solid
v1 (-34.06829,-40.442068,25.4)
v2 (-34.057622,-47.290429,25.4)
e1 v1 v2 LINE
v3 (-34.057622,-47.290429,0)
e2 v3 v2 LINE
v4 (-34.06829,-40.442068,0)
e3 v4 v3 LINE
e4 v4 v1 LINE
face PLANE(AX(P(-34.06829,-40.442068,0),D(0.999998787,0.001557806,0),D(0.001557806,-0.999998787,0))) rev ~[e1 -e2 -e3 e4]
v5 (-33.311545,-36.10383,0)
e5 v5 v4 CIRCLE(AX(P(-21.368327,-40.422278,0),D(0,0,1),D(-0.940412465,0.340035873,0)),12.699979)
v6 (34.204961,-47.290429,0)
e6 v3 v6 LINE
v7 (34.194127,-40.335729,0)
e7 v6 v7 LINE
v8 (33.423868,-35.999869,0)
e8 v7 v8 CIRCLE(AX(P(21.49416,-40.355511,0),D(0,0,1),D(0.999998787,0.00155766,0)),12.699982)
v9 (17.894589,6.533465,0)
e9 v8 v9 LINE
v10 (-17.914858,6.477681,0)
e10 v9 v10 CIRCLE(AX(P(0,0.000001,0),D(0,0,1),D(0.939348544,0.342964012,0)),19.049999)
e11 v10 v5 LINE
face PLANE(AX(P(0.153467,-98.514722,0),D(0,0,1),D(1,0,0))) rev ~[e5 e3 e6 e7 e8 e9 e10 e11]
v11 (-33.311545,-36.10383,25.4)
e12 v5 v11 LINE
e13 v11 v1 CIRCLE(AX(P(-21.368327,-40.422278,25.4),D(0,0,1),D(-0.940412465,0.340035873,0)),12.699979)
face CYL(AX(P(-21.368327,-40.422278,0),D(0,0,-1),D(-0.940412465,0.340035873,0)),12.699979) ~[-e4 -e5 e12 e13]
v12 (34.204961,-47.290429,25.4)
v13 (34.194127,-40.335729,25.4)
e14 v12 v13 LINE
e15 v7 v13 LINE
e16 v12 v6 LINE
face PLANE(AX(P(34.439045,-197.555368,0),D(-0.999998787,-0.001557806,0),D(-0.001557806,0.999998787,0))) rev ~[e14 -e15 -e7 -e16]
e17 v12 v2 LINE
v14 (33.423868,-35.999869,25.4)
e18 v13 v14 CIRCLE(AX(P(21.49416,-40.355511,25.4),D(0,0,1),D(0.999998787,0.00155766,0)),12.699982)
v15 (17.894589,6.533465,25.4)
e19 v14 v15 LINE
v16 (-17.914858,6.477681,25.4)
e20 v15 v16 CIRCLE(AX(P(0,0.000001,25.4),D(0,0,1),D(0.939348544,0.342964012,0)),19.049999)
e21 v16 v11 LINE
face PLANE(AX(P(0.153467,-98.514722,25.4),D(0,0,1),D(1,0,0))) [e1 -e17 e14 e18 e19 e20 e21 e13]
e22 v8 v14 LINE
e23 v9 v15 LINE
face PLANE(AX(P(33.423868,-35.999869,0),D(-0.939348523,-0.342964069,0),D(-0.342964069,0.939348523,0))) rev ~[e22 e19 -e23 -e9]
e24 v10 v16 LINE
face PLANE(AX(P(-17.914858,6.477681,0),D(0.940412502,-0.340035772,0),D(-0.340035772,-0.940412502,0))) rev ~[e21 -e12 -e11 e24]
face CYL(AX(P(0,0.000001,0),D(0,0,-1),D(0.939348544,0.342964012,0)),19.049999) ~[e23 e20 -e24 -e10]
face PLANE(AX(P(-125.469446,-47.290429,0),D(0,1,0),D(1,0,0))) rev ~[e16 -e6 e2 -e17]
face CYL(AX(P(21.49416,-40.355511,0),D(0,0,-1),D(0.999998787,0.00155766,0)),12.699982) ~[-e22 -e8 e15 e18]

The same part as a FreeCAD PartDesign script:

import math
import FreeCAD as App
import Part
import Sketcher
from FreeCAD import Vector
Q = App.Units.Quantity

doc = App.newDocument("Part")
body = doc.addObject("PartDesign::Body", "Body")

sketch1 = body.newObject("Sketcher::SketchObject", "Sketch")
sketch1.AttachmentSupport = (doc.getObject("XY_Plane"), [""])
sketch1.MapMode = "FlatFace"
sketch1.addGeometry(Part.LineSegment(Vector(33.423868, -35.999869, 0), Vector(17.894589, 6.533465, 0)), False)
sketch1.addGeometry(Part.ArcOfCircle(Part.Circle(Vector(0, 0.000001, 0), Vector(0, 0, 1), 19.049999), math.radians(20.057561), math.radians(160.12095)), False)
sketch1.addGeometry(Part.LineSegment(Vector(-17.914858, 6.477681, 0), Vector(-33.311545, -36.10383, 0)), False)
sketch1.addGeometry(Part.ArcOfCircle(Part.Circle(Vector(-21.368327, -40.422278, 0), Vector(0, 0, 1), 12.699979), math.radians(160.12094), math.radians(180.089281)), False)
sketch1.addGeometry(Part.LineSegment(Vector(-34.06829, -40.442068, 0), Vector(-33.823372, -197.661708, 0)), False)
sketch1.addGeometry(Part.LineSegment(Vector(-33.823372, -197.661708, 0), Vector(34.439045, -197.555368, 0)), False)
sketch1.addGeometry(Part.LineSegment(Vector(34.439045, -197.555368, 0), Vector(34.194127, -40.335729, 0)), False)
sketch1.addGeometry(Part.ArcOfCircle(Part.Circle(Vector(21.49416, -40.355511, 0), Vector(0, 0, 1), 12.699982), math.radians(0.089247), math.radians(20.057587)), False)
sketch1.addConstraint(Sketcher.Constraint("Coincident", 0, 2, 1, 1))
sketch1.addConstraint(Sketcher.Constraint("Coincident", 1, 2, 2, 1))
sketch1.addConstraint(Sketcher.Constraint("Coincident", 2, 2, 3, 1))
sketch1.addConstraint(Sketcher.Constraint("Coincident", 3, 2, 4, 1))
sketch1.addConstraint(Sketcher.Constraint("Coincident", 4, 2, 5, 1))
sketch1.addConstraint(Sketcher.Constraint("Coincident", 5, 2, 6, 1))
sketch1.addConstraint(Sketcher.Constraint("Coincident", 6, 2, 7, 1))
sketch1.addConstraint(Sketcher.Constraint("Coincident", 7, 2, 0, 1))
sketch1.addConstraint(Sketcher.Constraint("Coincident", 1, 3, -1, 1))
sketch1.addConstraint(Sketcher.Constraint("Radius", 1, Q("0.75 in")))
sketch1.addConstraint(Sketcher.Constraint("Distance", 5, Q("2.6875 in")))
sketch1.addConstraint(Sketcher.Constraint("Radius", 3, 12.699979))
sketch1.addConstraint(Sketcher.Constraint("Radius", 7, 12.699982))
sketch1.addConstraint(Sketcher.Constraint("DistanceY", 5, 2, 3, 2, 157.1133))
sketch1.addConstraint(Sketcher.Constraint("DistanceY", 6, 2, 2, 2, 4.231899))
sketch1.addConstraint(Sketcher.Constraint("Distance", 0, 45.279609))
sketch1.addConstraint(Sketcher.Constraint("Distance", 2, 45.27961))
sketch1.addConstraint(Sketcher.Constraint("Distance", 4, 157.219831))
sketch1.addConstraint(Sketcher.Constraint("Distance", 6, 157.21983))
sketch1.addConstraint(Sketcher.Constraint("DistanceY", 3, 3, -1, 1, 40.422278))
sketch1.addConstraint(Sketcher.Constraint("DistanceX", -1, 1, 7, 3, 21.49416))
sketch1.addConstraint(Sketcher.Constraint("DistanceY", 7, 3, -1, 1, 40.355511))
sketch1.addConstraint(Sketcher.Constraint("DistanceX", -1, 1, 0, 2, 17.894589))
sketch1.addConstraint(Sketcher.Constraint("DistanceY", -1, 1, 1, 2, 6.477681))
sketch1.addConstraint(Sketcher.Constraint("DistanceY", 2, 2, -1, 1, 36.10383))
sketch1.addConstraint(Sketcher.Constraint("DistanceX", 3, 2, 4, 2, 0.244918))
pad1 = body.newObject("PartDesign::Pad", "Pad")
pad1.Profile = sketch1
pad1.Length = Q("1 in")

sketch2 = body.newObject("Sketcher::SketchObject", "Sketch001")
sketch2.AttachmentSupport = (doc.getObject("XY_Plane"), [""])
sketch2.MapMode = "FlatFace"
sketch2.addGeometry(Part.LineSegment(Vector(-125, -236, 0), Vector(-125, -47, 0)), False)
sketch2.addGeometry(Part.LineSegment(Vector(-125, -47, 0), Vector(108, -47, 0)), False)
sketch2.addGeometry(Part.LineSegment(Vector(108, -47, 0), Vector(108, -236, 0)), False)
sketch2.addGeometry(Part.LineSegment(Vector(108, -236, 0), Vector(-125, -236, 0)), False)
sketch2.addConstraint(Sketcher.Constraint("Coincident", 0, 2, 1, 1))
sketch2.addConstraint(Sketcher.Constraint("Coincident", 1, 2, 2, 1))
sketch2.addConstraint(Sketcher.Constraint("Coincident", 2, 2, 3, 1))
sketch2.addConstraint(Sketcher.Constraint("Coincident", 3, 2, 0, 1))
sketch2.addConstraint(Sketcher.Constraint("Vertical", 0))
sketch2.addConstraint(Sketcher.Constraint("Horizontal", 1))
sketch2.addConstraint(Sketcher.Constraint("Vertical", 2))
sketch2.addConstraint(Sketcher.Constraint("Horizontal", 3))
sketch2.addConstraint(Sketcher.Constraint("DistanceX", 1, 1, 1, 2, 233.787931))
sketch2.addConstraint(Sketcher.Constraint("DistanceY", 0, 1, 0, 2, 188.866646))
sketch2.addConstraint(Sketcher.Constraint("DistanceY", 0, 2, -1, 1, 47.290429))
sketch2.addConstraint(Sketcher.Constraint("DistanceX", 0, 2, -1, 1, 125.469446))
pocket1 = body.newObject("PartDesign::Pocket", "Pocket")
pocket1.Profile = sketch2
pocket1.Length = Q("3.62 in")
pocket1.Reversed = True

doc.recompute()
